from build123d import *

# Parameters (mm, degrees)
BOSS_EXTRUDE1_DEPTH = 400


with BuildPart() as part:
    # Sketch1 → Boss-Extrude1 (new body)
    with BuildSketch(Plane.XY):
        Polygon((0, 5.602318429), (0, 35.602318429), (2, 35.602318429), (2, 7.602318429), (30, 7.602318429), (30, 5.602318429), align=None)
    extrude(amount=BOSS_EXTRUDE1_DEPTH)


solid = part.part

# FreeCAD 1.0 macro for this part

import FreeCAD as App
import Part
import Sketcher
Q = App.Units.Quantity


def add_polygon(sketch, points):
    """Adds a closed chain of lines whose ends are joined by coincident constraints."""
    first, n = sketch.GeometryCount, len(points)
    for a, b in zip(points, points[1:] + points[:1]):
        sketch.addGeometry(Part.LineSegment(App.Vector(*a, 0), App.Vector(*b, 0)), False)
    for i in range(n):
        sketch.addConstraint(Sketcher.Constraint("Coincident", first + i, 2, first + (i + 1) % n, 1))

doc = App.newDocument("Part")
body = doc.addObject("PartDesign::Body", "Body")

# Sketch on XY plane
sketch1 = body.newObject("Sketcher::SketchObject", "Sketch")
sketch1.AttachmentSupport = (doc.getObject("XY_Plane"), [""])
sketch1.MapMode = "FlatFace"
add_polygon(sketch1, [(0, 35.6), (0, 5.6), (30, 5.6), (30, 7.6), (2, 7.6), (2, 35.6)])  # lines 0-5
sketch1.addConstraint([
    Sketcher.Constraint("Vertical", 0),
    Sketcher.Constraint("Horizontal", 1),
    Sketcher.Constraint("Vertical", 2),
    Sketcher.Constraint("Horizontal", 3),
    Sketcher.Constraint("Vertical", 4),
    Sketcher.Constraint("Horizontal", 5),
    Sketcher.Constraint("PointOnObject", 0, 2, -2),
    Sketcher.Constraint("Equal", 1, 0),
    Sketcher.Constraint("Equal", 5, 2),
    Sketcher.Constraint("DistanceX", 1, 1, 1, 2, Q("30 mm")),
    Sketcher.Constraint("DistanceX", 3, 2, 3, 1, Q("28 mm")),
    Sketcher.Constraint("DistanceY", -1, 1, 0, 2, Q("5.602318 mm")),
])
pad1 = body.newObject("PartDesign::Pad", "Pad")
pad1.Profile = sketch1
pad1.Length = 400

doc.recompute()
